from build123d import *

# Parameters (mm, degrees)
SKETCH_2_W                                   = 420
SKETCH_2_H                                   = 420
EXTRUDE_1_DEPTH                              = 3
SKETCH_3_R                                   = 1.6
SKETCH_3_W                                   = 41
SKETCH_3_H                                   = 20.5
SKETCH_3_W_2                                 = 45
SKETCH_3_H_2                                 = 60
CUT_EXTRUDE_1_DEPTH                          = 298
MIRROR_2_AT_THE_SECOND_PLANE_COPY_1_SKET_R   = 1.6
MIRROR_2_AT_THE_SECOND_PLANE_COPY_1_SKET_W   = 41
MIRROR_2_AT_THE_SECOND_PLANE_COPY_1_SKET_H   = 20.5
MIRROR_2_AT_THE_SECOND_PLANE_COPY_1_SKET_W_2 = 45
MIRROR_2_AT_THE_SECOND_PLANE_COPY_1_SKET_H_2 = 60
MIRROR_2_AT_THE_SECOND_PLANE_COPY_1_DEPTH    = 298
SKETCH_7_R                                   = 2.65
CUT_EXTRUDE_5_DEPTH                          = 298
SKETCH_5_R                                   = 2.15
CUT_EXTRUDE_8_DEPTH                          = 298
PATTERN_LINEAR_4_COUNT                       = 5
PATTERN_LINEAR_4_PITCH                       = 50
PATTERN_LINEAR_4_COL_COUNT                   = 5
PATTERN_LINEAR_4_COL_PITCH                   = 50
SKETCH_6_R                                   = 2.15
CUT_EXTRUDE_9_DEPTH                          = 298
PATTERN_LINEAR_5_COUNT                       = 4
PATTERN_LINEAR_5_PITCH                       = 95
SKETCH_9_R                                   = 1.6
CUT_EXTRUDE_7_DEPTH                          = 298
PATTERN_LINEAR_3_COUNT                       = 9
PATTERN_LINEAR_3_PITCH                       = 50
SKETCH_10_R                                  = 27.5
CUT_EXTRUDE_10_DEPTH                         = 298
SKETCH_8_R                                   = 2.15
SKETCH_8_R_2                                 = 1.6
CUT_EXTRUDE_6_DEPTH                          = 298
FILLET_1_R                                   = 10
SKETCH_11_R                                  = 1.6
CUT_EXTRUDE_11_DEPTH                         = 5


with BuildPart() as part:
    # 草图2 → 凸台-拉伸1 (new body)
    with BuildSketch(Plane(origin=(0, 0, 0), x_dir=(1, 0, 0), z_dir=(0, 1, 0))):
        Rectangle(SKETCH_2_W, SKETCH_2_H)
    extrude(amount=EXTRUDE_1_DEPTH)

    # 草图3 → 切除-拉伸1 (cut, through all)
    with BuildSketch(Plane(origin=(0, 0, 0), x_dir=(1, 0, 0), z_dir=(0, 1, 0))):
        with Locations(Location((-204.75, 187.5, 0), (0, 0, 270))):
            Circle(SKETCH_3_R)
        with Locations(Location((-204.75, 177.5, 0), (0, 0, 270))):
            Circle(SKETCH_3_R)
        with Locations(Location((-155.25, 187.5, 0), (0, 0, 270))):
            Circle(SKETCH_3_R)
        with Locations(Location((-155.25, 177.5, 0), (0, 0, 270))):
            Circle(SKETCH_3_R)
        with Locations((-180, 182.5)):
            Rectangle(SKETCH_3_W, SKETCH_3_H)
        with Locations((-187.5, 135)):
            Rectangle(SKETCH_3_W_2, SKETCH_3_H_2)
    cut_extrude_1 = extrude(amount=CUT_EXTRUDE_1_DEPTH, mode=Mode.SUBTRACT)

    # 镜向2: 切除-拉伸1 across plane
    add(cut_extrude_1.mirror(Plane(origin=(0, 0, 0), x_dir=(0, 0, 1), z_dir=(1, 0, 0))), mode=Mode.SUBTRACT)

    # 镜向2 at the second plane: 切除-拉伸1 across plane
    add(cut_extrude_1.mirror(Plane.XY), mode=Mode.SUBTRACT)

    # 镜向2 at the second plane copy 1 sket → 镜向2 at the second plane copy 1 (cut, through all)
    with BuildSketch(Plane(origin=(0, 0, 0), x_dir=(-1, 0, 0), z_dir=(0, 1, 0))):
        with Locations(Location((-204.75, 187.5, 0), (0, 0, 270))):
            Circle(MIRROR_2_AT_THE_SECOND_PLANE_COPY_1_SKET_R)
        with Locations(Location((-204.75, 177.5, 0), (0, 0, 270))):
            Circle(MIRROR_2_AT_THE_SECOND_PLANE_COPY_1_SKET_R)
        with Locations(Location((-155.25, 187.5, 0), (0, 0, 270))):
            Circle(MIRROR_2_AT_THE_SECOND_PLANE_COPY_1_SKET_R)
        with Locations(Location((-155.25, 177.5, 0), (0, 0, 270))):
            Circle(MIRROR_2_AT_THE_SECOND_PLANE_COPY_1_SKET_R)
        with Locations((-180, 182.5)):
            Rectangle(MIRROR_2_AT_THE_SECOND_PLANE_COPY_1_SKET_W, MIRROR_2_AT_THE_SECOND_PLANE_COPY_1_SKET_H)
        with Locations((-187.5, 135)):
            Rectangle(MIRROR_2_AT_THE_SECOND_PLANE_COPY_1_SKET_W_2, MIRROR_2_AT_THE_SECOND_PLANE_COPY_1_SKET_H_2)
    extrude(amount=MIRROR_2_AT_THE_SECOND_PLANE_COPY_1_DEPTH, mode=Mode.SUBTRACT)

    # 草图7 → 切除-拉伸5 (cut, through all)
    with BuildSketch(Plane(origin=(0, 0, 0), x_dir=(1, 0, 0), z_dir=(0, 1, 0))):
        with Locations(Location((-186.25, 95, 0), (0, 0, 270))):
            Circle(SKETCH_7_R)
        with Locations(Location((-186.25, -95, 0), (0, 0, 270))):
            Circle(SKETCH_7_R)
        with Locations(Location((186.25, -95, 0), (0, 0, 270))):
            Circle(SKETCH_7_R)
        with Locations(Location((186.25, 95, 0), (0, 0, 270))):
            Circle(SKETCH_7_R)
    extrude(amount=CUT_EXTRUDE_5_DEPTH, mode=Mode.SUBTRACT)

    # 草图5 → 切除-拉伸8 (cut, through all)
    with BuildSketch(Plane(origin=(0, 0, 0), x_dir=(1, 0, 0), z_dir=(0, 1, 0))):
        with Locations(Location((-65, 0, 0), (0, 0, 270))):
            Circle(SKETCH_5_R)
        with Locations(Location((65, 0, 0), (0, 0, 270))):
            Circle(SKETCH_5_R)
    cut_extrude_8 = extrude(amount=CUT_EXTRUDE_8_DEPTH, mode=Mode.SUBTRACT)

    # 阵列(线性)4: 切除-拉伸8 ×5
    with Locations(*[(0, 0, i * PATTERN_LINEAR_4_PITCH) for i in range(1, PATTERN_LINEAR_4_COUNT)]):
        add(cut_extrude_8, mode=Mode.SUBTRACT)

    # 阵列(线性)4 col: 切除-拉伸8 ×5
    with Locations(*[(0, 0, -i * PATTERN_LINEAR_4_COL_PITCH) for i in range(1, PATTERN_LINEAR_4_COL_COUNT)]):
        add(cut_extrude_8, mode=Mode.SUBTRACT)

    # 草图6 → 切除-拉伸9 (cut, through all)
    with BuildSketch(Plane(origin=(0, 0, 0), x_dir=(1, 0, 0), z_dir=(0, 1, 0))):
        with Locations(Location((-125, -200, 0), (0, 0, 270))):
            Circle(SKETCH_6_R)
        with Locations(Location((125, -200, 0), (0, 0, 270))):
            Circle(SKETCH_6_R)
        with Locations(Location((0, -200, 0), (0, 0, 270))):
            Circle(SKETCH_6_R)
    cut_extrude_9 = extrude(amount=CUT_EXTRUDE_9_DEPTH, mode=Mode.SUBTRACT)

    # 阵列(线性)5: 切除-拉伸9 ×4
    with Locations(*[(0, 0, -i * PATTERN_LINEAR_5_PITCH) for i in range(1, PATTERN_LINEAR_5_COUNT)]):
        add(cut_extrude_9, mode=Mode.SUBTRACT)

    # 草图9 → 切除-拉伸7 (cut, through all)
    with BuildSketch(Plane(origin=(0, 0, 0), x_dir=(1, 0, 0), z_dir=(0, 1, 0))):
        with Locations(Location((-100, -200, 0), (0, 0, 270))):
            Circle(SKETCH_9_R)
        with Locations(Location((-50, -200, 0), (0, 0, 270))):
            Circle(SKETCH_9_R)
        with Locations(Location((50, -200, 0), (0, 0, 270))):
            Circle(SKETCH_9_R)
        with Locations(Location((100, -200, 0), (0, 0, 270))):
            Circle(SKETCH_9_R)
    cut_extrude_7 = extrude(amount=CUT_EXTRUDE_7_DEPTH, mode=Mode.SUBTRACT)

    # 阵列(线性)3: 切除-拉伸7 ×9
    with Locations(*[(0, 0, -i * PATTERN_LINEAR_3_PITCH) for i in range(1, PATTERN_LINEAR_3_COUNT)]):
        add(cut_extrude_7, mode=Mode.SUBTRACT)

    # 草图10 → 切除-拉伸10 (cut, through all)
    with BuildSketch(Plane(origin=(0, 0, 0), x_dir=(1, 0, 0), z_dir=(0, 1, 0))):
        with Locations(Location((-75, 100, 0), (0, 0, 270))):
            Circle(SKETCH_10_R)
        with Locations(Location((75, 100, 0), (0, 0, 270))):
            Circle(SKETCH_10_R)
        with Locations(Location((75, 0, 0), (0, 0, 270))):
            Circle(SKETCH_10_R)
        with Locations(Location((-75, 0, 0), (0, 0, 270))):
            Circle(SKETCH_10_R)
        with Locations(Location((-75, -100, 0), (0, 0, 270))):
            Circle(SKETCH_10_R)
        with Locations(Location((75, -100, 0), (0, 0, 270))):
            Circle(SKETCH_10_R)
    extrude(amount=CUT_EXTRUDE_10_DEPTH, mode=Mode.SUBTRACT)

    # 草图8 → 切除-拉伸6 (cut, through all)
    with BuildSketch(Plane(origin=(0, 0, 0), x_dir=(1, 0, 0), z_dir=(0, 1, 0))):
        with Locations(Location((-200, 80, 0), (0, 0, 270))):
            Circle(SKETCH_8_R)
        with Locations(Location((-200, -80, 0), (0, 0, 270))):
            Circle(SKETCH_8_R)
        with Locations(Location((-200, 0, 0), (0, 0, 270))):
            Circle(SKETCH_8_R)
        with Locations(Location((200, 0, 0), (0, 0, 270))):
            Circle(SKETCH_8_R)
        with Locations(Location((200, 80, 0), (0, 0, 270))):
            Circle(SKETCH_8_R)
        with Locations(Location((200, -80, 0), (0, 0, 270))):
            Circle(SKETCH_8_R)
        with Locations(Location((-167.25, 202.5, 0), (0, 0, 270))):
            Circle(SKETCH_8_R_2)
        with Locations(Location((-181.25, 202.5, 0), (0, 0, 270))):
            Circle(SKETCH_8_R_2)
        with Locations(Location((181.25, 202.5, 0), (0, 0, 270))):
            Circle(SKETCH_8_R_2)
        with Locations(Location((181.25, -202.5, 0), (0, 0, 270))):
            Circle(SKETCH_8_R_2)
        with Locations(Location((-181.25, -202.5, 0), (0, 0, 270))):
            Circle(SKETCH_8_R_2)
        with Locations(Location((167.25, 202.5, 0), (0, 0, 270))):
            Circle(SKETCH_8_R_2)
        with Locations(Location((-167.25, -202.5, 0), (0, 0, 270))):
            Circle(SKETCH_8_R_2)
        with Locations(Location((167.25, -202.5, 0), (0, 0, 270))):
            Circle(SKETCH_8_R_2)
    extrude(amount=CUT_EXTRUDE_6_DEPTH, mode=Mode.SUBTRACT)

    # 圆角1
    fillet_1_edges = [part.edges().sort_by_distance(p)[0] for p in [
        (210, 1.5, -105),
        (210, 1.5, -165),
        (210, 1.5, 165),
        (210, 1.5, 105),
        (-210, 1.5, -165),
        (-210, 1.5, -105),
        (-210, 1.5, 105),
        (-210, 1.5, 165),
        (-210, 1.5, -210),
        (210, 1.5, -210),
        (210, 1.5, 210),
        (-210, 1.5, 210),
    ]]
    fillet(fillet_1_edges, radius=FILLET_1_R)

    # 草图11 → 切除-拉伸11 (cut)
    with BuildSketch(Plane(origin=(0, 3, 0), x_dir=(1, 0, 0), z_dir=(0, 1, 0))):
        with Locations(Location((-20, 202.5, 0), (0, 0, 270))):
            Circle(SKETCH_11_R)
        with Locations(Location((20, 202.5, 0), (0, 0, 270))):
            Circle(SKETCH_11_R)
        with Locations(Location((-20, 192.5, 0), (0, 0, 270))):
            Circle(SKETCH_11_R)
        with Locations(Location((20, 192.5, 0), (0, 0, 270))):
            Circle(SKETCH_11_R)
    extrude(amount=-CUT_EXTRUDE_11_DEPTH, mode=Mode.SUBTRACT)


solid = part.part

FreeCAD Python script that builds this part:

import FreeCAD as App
import Part
import Sketcher

V = App.Vector


def edges_at(feature, points):
    """Names of the edges that pass closest to the given points."""
    edges = feature.Shape.Edges
    near = lambda p: min(range(len(edges)), key=lambda i: edges[i].distToShape(Part.Vertex(*p))[0])
    return sorted({f"Edge{near(p) + 1}" for p in points})


def add_polygon(sketch, points):
    """Adds a closed chain of lines whose ends are joined by coincident constraints."""
    first, n = sketch.GeometryCount, len(points)
    for a, b in zip(points, points[1:] + points[:1]):
        sketch.addGeometry(Part.LineSegment(App.Vector(*a, 0), App.Vector(*b, 0)), False)
    for i in range(n):
        sketch.addConstraint(Sketcher.Constraint("Coincident", first + i, 2, first + (i + 1) % n, 1))

doc = App.newDocument("Part")
body = doc.addObject("PartDesign::Body", "Body")

# Sketch on XZ plane
sketch1 = doc.addObject("Sketcher::SketchObject", "Sketch")
body.addObject(sketch1)
sketch1.AttachmentSupport = (doc.XZ_Plane, [""])
sketch1.MapMode = "FlatFace"
add_polygon(sketch1, [(-210, -210), (-210, 210), (210, 210), (210, -210)])  # lines 0-3
sketch1.addConstraint(Sketcher.Constraint("Vertical", 0))
sketch1.addConstraint(Sketcher.Constraint("Horizontal", 1))
sketch1.addConstraint(Sketcher.Constraint("Vertical", 2))
sketch1.addConstraint(Sketcher.Constraint("Horizontal", 3))
sketch1.addConstraint(Sketcher.Constraint("Symmetric", 0, 2, 2, 2, -1, 1))
sketch1.addConstraint(Sketcher.Constraint("Equal", 3, 0))
sketch1.addConstraint(Sketcher.Constraint("DistanceX", 1, 1, 1, 2, 420.0))
pad1 = doc.addObject("PartDesign::Pad", "Pad")
body.addObject(pad1)
pad1.Profile = sketch1
pad1.Length = 3
pad1.Reversed = True

# Sketch on XZ plane
sketch2 = doc.addObject("Sketcher::SketchObject", "Sketch001")
body.addObject(sketch2)
sketch2.AttachmentSupport = (doc.XZ_Plane, [""])
sketch2.MapMode = "FlatFace"
sketch2.addGeometry(Part.Circle(V(-204.8, -187.5, 0), V(0, 0, 1), 1.6), False)  # 0
sketch2.addGeometry(Part.Circle(V(-204.8, -177.5, 0), V(0, 0, 1), 1.6), False)  # 1
sketch2.addGeometry(Part.Circle(V(-155.2, -187.5, 0), V(0, 0, 1), 1.6), False)  # 2
sketch2.addGeometry(Part.Circle(V(-155.2, -177.5, 0), V(0, 0, 1), 1.6), False)  # 3
add_polygon(sketch2, [(-200.5, -192.8), (-200.5, -172.2), (-159.5, -172.2), (-159.5, -192.8)])  # lines 4-7
add_polygon(sketch2, [(-210, -165), (-210, -105), (-165, -105), (-165, -165)])  # lines 8-11
sketch2.addConstraint(Sketcher.Constraint("Vertical", 4))
sketch2.addConstraint(Sketcher.Constraint("Horizontal", 5))
sketch2.addConstraint(Sketcher.Constraint("Vertical", 6))
sketch2.addConstraint(Sketcher.Constraint("Horizontal", 7))
sketch2.addConstraint(Sketcher.Constraint("Vertical", 8))
sketch2.addConstraint(Sketcher.Constraint("Horizontal", 9))
sketch2.addConstraint(Sketcher.Constraint("Vertical", 10))
sketch2.addConstraint(Sketcher.Constraint("Horizontal", 11))
sketch2.addConstraint(Sketcher.Constraint("Equal", 0, 1))
sketch2.addConstraint(Sketcher.Constraint("Equal", 1, 2))
sketch2.addConstraint(Sketcher.Constraint("Equal", 2, 3))
sketch2.addConstraint(Sketcher.Constraint("Horizontal", 0, 3, 2, 3))
sketch2.addConstraint(Sketcher.Constraint("Horizontal", 1, 3, 3, 3))
sketch2.addConstraint(Sketcher.Constraint("Vertical", 0, 3, 1, 3))
sketch2.addConstraint(Sketcher.Constraint("Vertical", 2, 3, 3, 3))
sketch2.addConstraint(Sketcher.Constraint("Diameter", 0, 3.2))
sketch2.addConstraint(Sketcher.Constraint("DistanceX", 5, 1, 5, 2, 41.0))
sketch2.addConstraint(Sketcher.Constraint("DistanceX", 9, 1, 9, 2, 45.0))
sketch2.addConstraint(Sketcher.Constraint("DistanceY", 8, 1, 8, 2, 60.0))
sketch2.addConstraint(Sketcher.Constraint("DistanceY", 4, 1, 4, 2, 20.5))
sketch2.addConstraint(Sketcher.Constraint("DistanceX", 8, 2, -1, 1, 210.0))
sketch2.addConstraint(Sketcher.Constraint("DistanceY", 8, 2, -1, 1, 105.0))
sketch2.addConstraint(Sketcher.Constraint("DistanceY", 0, 3, 1, 3, 10.0))
sketch2.addConstraint(Sketcher.Constraint("DistanceY", 0, 3, -1, 1, 187.5))
sketch2.addConstraint(Sketcher.Constraint("DistanceX", 4, 2, -1, 1, 200.5))
sketch2.addConstraint(Sketcher.Constraint("DistanceX", 0, 3, 2, 3, 49.5))
sketch2.addConstraint(Sketcher.Constraint("DistanceX", 0, 3, -1, 1, 204.75))
sketch2.addConstraint(Sketcher.Constraint("DistanceY", 4, 2, -1, 1, 172.25))
pocket1 = doc.addObject("PartDesign::Pocket", "Pocket")
body.addObject(pocket1)
pocket1.Profile = sketch2
pocket1.Type = "ThroughAll"
doc.recompute()

mirrored = doc.addObject("PartDesign::Mirrored", "Mirrored")
body.addObject(mirrored)
mirrored.Originals = [pocket1]
mirrored.MirrorPlane = (doc.YZ_Plane, [""])
body.Tip = mirrored
doc.recompute()

mirrored2 = doc.addObject("PartDesign::Mirrored", "Mirrored001")
body.addObject(mirrored2)
mirrored2.Originals = [pocket1]
mirrored2.MirrorPlane = (doc.XY_Plane, [""])
body.Tip = mirrored2

# Sketch on XZ plane
sketch3 = doc.addObject("Sketcher::SketchObject", "Sketch002")
body.addObject(sketch3)
sketch3.AttachmentSupport = (doc.XZ_Plane, [""])
sketch3.MapMode = "FlatFace"
sketch3.addGeometry(Part.Circle(V(204.8, 187.5, 0), V(0, 0, 1), 1.6), False)  # 0
sketch3.addGeometry(Part.Circle(V(204.8, 177.5, 0), V(0, 0, 1), 1.6), False)  # 1
sketch3.addGeometry(Part.Circle(V(155.2, 187.5, 0), V(0, 0, 1), 1.6), False)  # 2
sketch3.addGeometry(Part.Circle(V(155.2, 177.5, 0), V(0, 0, 1), 1.6), False)  # 3
add_polygon(sketch3, [(200.5, 192.8), (200.5, 172.2), (159.5, 172.2), (159.5, 192.8)])  # lines 4-7
add_polygon(sketch3, [(210, 165), (210, 105), (165, 105), (165, 165)])  # lines 8-11
sketch3.addConstraint(Sketcher.Constraint("Vertical", 4))
sketch3.addConstraint(Sketcher.Constraint("Horizontal", 5))
sketch3.addConstraint(Sketcher.Constraint("Vertical", 6))
sketch3.addConstraint(Sketcher.Constraint("Horizontal", 7))
sketch3.addConstraint(Sketcher.Constraint("Vertical", 8))
sketch3.addConstraint(Sketcher.Constraint("Horizontal", 9))
sketch3.addConstraint(Sketcher.Constraint("Vertical", 10))
sketch3.addConstraint(Sketcher.Constraint("Horizontal", 11))
sketch3.addConstraint(Sketcher.Constraint("Equal", 0, 1))
sketch3.addConstraint(Sketcher.Constraint("Equal", 1, 2))
sketch3.addConstraint(Sketcher.Constraint("Equal", 2, 3))
sketch3.addConstraint(Sketcher.Constraint("Horizontal", 0, 3, 2, 3))
sketch3.addConstraint(Sketcher.Constraint("Horizontal", 1, 3, 3, 3))
sketch3.addConstraint(Sketcher.Constraint("Vertical", 0, 3, 1, 3))
sketch3.addConstraint(Sketcher.Constraint("Vertical", 2, 3, 3, 3))
sketch3.addConstraint(Sketcher.Constraint("Diameter", 0, 3.2))
sketch3.addConstraint(Sketcher.Constraint("DistanceX", 5, 2, 5, 1, 41.0))
sketch3.addConstraint(Sketcher.Constraint("DistanceX", 9, 2, 9, 1, 45.0))
sketch3.addConstraint(Sketcher.Constraint("DistanceY", 8, 2, 8, 1, 60.0))
sketch3.addConstraint(Sketcher.Constraint("DistanceY", 4, 2, 4, 1, 20.5))
sketch3.addConstraint(Sketcher.Constraint("DistanceX", -1, 1, 8, 2, 210.0))
sketch3.addConstraint(Sketcher.Constraint("DistanceY", -1, 1, 8, 2, 105.0))
sketch3.addConstraint(Sketcher.Constraint("DistanceY", 1, 3, 0, 3, 10.0))
sketch3.addConstraint(Sketcher.Constraint("DistanceY", -1, 1, 0, 3, 187.5))
sketch3.addConstraint(Sketcher.Constraint("DistanceX", -1, 1, 4, 2, 200.5))
sketch3.addConstraint(Sketcher.Constraint("DistanceX", 2, 3, 0, 3, 49.5))
sketch3.addConstraint(Sketcher.Constraint("DistanceX", -1, 1, 0, 3, 204.75))
sketch3.addConstraint(Sketcher.Constraint("DistanceY", -1, 1, 4, 2, 172.25))
pocket2 = doc.addObject("PartDesign::Pocket", "Pocket001")
body.addObject(pocket2)
pocket2.Profile = sketch3
pocket2.Type = "ThroughAll"

# Sketch on XZ plane
sketch4 = doc.addObject("Sketcher::SketchObject", "Sketch003")
body.addObject(sketch4)
sketch4.AttachmentSupport = (doc.XZ_Plane, [""])
sketch4.MapMode = "FlatFace"
sketch4.addGeometry(Part.Circle(V(-186.2, -95, 0), V(0, 0, 1), 2.6), False)
sketch4.addGeometry(Part.Circle(V(-186.2, 95, 0), V(0, 0, 1), 2.6), False)
sketch4.addGeometry(Part.Circle(V(186.2, 95, 0), V(0, 0, 1), 2.6), False)
sketch4.addGeometry(Part.Circle(V(186.2, -95, 0), V(0, 0, 1), 2.6), False)
sketch4.addConstraint(Sketcher.Constraint("Equal", 0, 1))
sketch4.addConstraint(Sketcher.Constraint("Equal", 1, 2))
sketch4.addConstraint(Sketcher.Constraint("Equal", 2, 3))
sketch4.addConstraint(Sketcher.Constraint("Symmetric", 0, 3, 2, 3, -1, 1))
sketch4.addConstraint(Sketcher.Constraint("Symmetric", 1, 3, 3, 3, -1, 1))
sketch4.addConstraint(Sketcher.Constraint("Symmetric", 1, 3, 2, 3, -2))
sketch4.addConstraint(Sketcher.Constraint("Diameter", 0, 5.3))
sketch4.addConstraint(Sketcher.Constraint("DistanceY", 0, 3, -1, 1, 95.0))
sketch4.addConstraint(Sketcher.Constraint("DistanceX", 1, 3, 2, 3, 372.5))
pocket3 = doc.addObject("PartDesign::Pocket", "Pocket002")
body.addObject(pocket3)
pocket3.Profile = sketch4
pocket3.Type = "ThroughAll"

# Sketch on XZ plane
sketch5 = doc.addObject("Sketcher::SketchObject", "Sketch004")
body.addObject(sketch5)
sketch5.AttachmentSupport = (doc.XZ_Plane, [""])
sketch5.MapMode = "FlatFace"
sketch5.addGeometry(Part.Circle(V(-65, 0, 0), V(0, 0, 1), 2.1), False)
sketch5.addGeometry(Part.Circle(V(65, 0, 0), V(0, 0, 1), 2.1), False)
sketch5.addConstraint(Sketcher.Constraint("Equal", 0, 1))
sketch5.addConstraint(Sketcher.Constraint("Symmetric", 0, 3, 1, 3, -1, 1))
sketch5.addConstraint(Sketcher.Constraint("PointOnObject", 0, 3, -1))
sketch5.addConstraint(Sketcher.Constraint("Diameter", 0, 4.3))
sketch5.addConstraint(Sketcher.Constraint("DistanceX", 0, 3, -1, 1, 65.0))
pocket4 = doc.addObject("PartDesign::Pocket", "Pocket003")
body.addObject(pocket4)
pocket4.Profile = sketch5
pocket4.Type = "ThroughAll"
doc.recompute()

linearpattern = doc.addObject("PartDesign::LinearPattern", "LinearPattern")
body.addObject(linearpattern)
linearpattern.Originals = [pocket4]
linearpattern.Direction = (doc.Z_Axis, [""])
linearpattern.Mode = "offset"
linearpattern.Offset = 50
linearpattern.Occurrences = 5
body.Tip = linearpattern
doc.recompute()

linearpattern2 = doc.addObject("PartDesign::LinearPattern", "LinearPattern001")
body.addObject(linearpattern2)
linearpattern2.Originals = [pocket4]
linearpattern2.Direction = (doc.Z_Axis, [""])
linearpattern2.Mode = "offset"
linearpattern2.Offset = 50
linearpattern2.Occurrences = 5
linearpattern2.Reversed = True
body.Tip = linearpattern2

# Sketch on XZ plane
sketch6 = doc.addObject("Sketcher::SketchObject", "Sketch005")
body.addObject(sketch6)
sketch6.AttachmentSupport = (doc.XZ_Plane, [""])
sketch6.MapMode = "FlatFace"
sketch6.addGeometry(Part.Circle(V(-125, 200, 0), V(0, 0, 1), 2.1), False)
sketch6.addGeometry(Part.Circle(V(125, 200, 0), V(0, 0, 1), 2.1), False)
sketch6.addGeometry(Part.Circle(V(0, 200, 0), V(0, 0, 1), 2.1), False)
sketch6.addConstraint(Sketcher.Constraint("Equal", 0, 1))
sketch6.addConstraint(Sketcher.Constraint("Equal", 1, 2))
sketch6.addConstraint(Sketcher.Constraint("Symmetric", 0, 3, 1, 3, -2))
sketch6.addConstraint(Sketcher.Constraint("PointOnObject", 2, 3, -2))
sketch6.addConstraint(Sketcher.Constraint("Horizontal", 1, 3, 2, 3))
sketch6.addConstraint(Sketcher.Constraint("Diameter", 0, 4.3))
sketch6.addConstraint(Sketcher.Constraint("DistanceX", 0, 3, -1, 1, 125.0))
sketch6.addConstraint(Sketcher.Constraint("DistanceY", -1, 1, 0, 3, 200.0))
pocket5 = doc.addObject("PartDesign::Pocket", "Pocket004")
body.addObject(pocket5)
pocket5.Profile = sketch6
pocket5.Type = "ThroughAll"
doc.recompute()

linearpattern3 = doc.addObject("PartDesign::LinearPattern", "LinearPattern002")
body.addObject(linearpattern3)
linearpattern3.Originals = [pocket5]
linearpattern3.Direction = (doc.Z_Axis, [""])
linearpattern3.Mode = "offset"
linearpattern3.Offset = 95
linearpattern3.Occurrences = 4
linearpattern3.Reversed = True
body.Tip = linearpattern3

# Sketch on XZ plane
sketch7 = doc.addObject("Sketcher::SketchObject", "Sketch006")
body.addObject(sketch7)
sketch7.AttachmentSupport = (doc.XZ_Plane, [""])
sketch7.MapMode = "FlatFace"
sketch7.addGeometry(Part.Circle(V(-100, 200, 0), V(0, 0, 1), 1.6), False)
sketch7.addGeometry(Part.Circle(V(-50, 200, 0), V(0, 0, 1), 1.6), False)
sketch7.addGeometry(Part.Circle(V(50, 200, 0), V(0, 0, 1), 1.6), False)
sketch7.addGeometry(Part.Circle(V(100, 200, 0), V(0, 0, 1), 1.6), False)
sketch7.addConstraint(Sketcher.Constraint("Equal", 0, 1))
sketch7.addConstraint(Sketcher.Constraint("Equal", 1, 2))
sketch7.addConstraint(Sketcher.Constraint("Equal", 2, 3))
sketch7.addConstraint(Sketcher.Constraint("Symmetric", 1, 3, 2, 3, -2))
sketch7.addConstraint(Sketcher.Constraint("Symmetric", 0, 3, 3, 3, -2))
sketch7.addConstraint(Sketcher.Constraint("Horizontal", 0, 3, 1, 3))
sketch7.addConstraint(Sketcher.Constraint("Diameter", 0, 3.2))
sketch7.addConstraint(Sketcher.Constraint("DistanceX", 0, 3, -1, 1, 100.0))
sketch7.addConstraint(Sketcher.Constraint("DistanceY", -1, 1, 0, 3, 200.0))
sketch7.addConstraint(Sketcher.Constraint("DistanceX", 1, 3, -1, 1, 50.0))
pocket6 = doc.addObject("PartDesign::Pocket", "Pocket005")
body.addObject(pocket6)
pocket6.Profile = sketch7
pocket6.Type = "ThroughAll"
doc.recompute()

linearpattern4 = doc.addObject("PartDesign::LinearPattern", "LinearPattern003")
body.addObject(linearpattern4)
linearpattern4.Originals = [pocket6]
linearpattern4.Direction = (doc.Z_Axis, [""])
linearpattern4.Mode = "offset"
linearpattern4.Offset = 50
linearpattern4.Occurrences = 9
linearpattern4.Reversed = True
body.Tip = linearpattern4

# Sketch on XZ plane
sketch8 = doc.addObject("Sketcher::SketchObject", "Sketch007")
body.addObject(sketch8)
sketch8.AttachmentSupport = (doc.XZ_Plane, [""])
sketch8.MapMode = "FlatFace"
sketch8.addGeometry(Part.Circle(V(-75, -100, 0), V(0, 0, 1), 28), False)
sketch8.addGeometry(Part.Circle(V(75, -100, 0), V(0, 0, 1), 28), False)
sketch8.addGeometry(Part.Circle(V(75, 0, 0), V(0, 0, 1), 28), False)
sketch8.addGeometry(Part.Circle(V(-75, 0, 0), V(0, 0, 1), 28), False)
sketch8.addGeometry(Part.Circle(V(-75, 100, 0), V(0, 0, 1), 28), False)
sketch8.addGeometry(Part.Circle(V(75, 100, 0), V(0, 0, 1), 28), False)
sketch8.addConstraint(Sketcher.Constraint("Equal", 0, 1))
sketch8.addConstraint(Sketcher.Constraint("Equal", 1, 2))
sketch8.addConstraint(Sketcher.Constraint("Equal", 2, 3))
sketch8.addConstraint(Sketcher.Constraint("Equal", 3, 4))
sketch8.addConstraint(Sketcher.Constraint("Equal", 4, 5))
sketch8.addConstraint(Sketcher.Constraint("Symmetric", 2, 3, 3, 3, -1, 1))
sketch8.addConstraint(Sketcher.Constraint("Symmetric", 1, 3, 4, 3, -1, 1))
sketch8.addConstraint(Sketcher.Constraint("Symmetric", 0, 3, 5, 3, -1, 1))
sketch8.addConstraint(Sketcher.Constraint("Symmetric", 0, 3, 1, 3, -2))
sketch8.addConstraint(Sketcher.Constraint("PointOnObject", 2, 3, -1))
sketch8.addConstraint(Sketcher.Constraint("Vertical", 1, 3, 2, 3))
sketch8.addConstraint(Sketcher.Constraint("Diameter", 0, 55.0))
sketch8.addConstraint(Sketcher.Constraint("DistanceX", 0, 3, -1, 1, 75.0))
sketch8.addConstraint(Sketcher.Constraint("DistanceY", 0, 3, -1, 1, 100.0))
pocket7 = doc.addObject("PartDesign::Pocket", "Pocket006")
body.addObject(pocket7)
pocket7.Profile = sketch8
pocket7.Type = "ThroughAll"

# Sketch on XZ plane
sketch9 = doc.addObject("Sketcher::SketchObject", "Sketch008")
body.addObject(sketch9)
sketch9.AttachmentSupport = (doc.XZ_Plane, [""])
sketch9.MapMode = "FlatFace"
sketch9.addGeometry(Part.Circle(V(-200, -80, 0), V(0, 0, 1), 2.1), False)
sketch9.addGeometry(Part.Circle(V(-200, 80, 0), V(0, 0, 1), 2.1), False)
sketch9.addGeometry(Part.Circle(V(-200, 0, 0), V(0, 0, 1), 2.1), False)
sketch9.addGeometry(Part.Circle(V(200, 0, 0), V(0, 0, 1), 2.1), False)
sketch9.addGeometry(Part.Circle(V(200, -80, 0), V(0, 0, 1), 2.1), False)
sketch9.addGeometry(Part.Circle(V(200, 80, 0), V(0, 0, 1), 2.1), False)
sketch9.addGeometry(Part.Circle(V(-167.2, -202.5, 0), V(0, 0, 1), 1.6), False)
sketch9.addGeometry(Part.Circle(V(-181.2, -202.5, 0), V(0, 0, 1), 1.6), False)
sketch9.addGeometry(Part.Circle(V(181.2, -202.5, 0), V(0, 0, 1), 1.6), False)
sketch9.addGeometry(Part.Circle(V(181.2, 202.5, 0), V(0, 0, 1), 1.6), False)
sketch9.addGeometry(Part.Circle(V(-181.2, 202.5, 0), V(0, 0, 1), 1.6), False)
sketch9.addGeometry(Part.Circle(V(167.2, -202.5, 0), V(0, 0, 1), 1.6), False)
sketch9.addGeometry(Part.Circle(V(-167.2, 202.5, 0), V(0, 0, 1), 1.6), False)
sketch9.addGeometry(Part.Circle(V(167.2, 202.5, 0), V(0, 0, 1), 1.6), False)
sketch9.addConstraint(Sketcher.Constraint("Equal", 0, 1))
sketch9.addConstraint(Sketcher.Constraint("Equal", 1, 2))
sketch9.addConstraint(Sketcher.Constraint("Equal", 2, 3))
sketch9.addConstraint(Sketcher.Constraint("Equal", 3, 4))
sketch9.addConstraint(Sketcher.Constraint("Equal", 4, 5))
sketch9.addConstraint(Sketcher.Constraint("Equal", 6, 7))
sketch9.addConstraint(Sketcher.Constraint("Equal", 7, 8))
sketch9.addConstraint(Sketcher.Constraint("Equal", 8, 9))
sketch9.addConstraint(Sketcher.Constraint("Equal", 9, 10))
sketch9.addConstraint(Sketcher.Constraint("Equal", 10, 11))
sketch9.addConstraint(Sketcher.Constraint("Equal", 11, 12))
sketch9.addConstraint(Sketcher.Constraint("Equal", 12, 13))
sketch9.addConstraint(Sketcher.Constraint("Symmetric", 2, 3, 3, 3, -1, 1))
sketch9.addConstraint(Sketcher.Constraint("Symmetric", 1, 3, 4, 3, -1, 1))
sketch9.addConstraint(Sketcher.Constraint("Symmetric", 0, 3, 5, 3, -1, 1))
sketch9.addConstraint(Sketcher.Constraint("Symmetric", 7, 3, 9, 3, -1, 1))
sketch9.addConstraint(Sketcher.Constraint("Symmetric", 8, 3, 10, 3, -1, 1))
sketch9.addConstraint(Sketcher.Constraint("Symmetric", 11, 3, 12, 3, -1, 1))
sketch9.addConstraint(Sketcher.Constraint("Symmetric", 6, 3, 13, 3, -1, 1))
sketch9.addConstraint(Sketcher.Constraint("Symmetric", 0, 3, 4, 3, -2))
sketch9.addConstraint(Sketcher.Constraint("Symmetric", 7, 3, 8, 3, -2))
sketch9.addConstraint(Sketcher.Constraint("Symmetric", 6, 3, 11, 3, -2))
sketch9.addConstraint(Sketcher.Constraint("PointOnObject", 2, 3, -1))
sketch9.addConstraint(Sketcher.Constraint("Horizontal", 6, 3, 7, 3))
sketch9.addConstraint(Sketcher.Constraint("Vertical", 1, 3, 2, 3))
sketch9.addConstraint(Sketcher.Constraint("Diameter", 0, 4.3))
sketch9.addConstraint(Sketcher.Constraint("Diameter", 6, 3.2))
sketch9.addConstraint(Sketcher.Constraint("DistanceX", 0, 3, -1, 1, 200.0))
sketch9.addConstraint(Sketcher.Constraint("DistanceY", 0, 3, -1, 1, 80.0))
sketch9.addConstraint(Sketcher.Constraint("DistanceX", 7, 3, 6, 3, 14.0))
sketch9.addConstraint(Sketcher.Constraint("DistanceY", 8, 3, 9, 3, 405.0))
sketch9.addConstraint(Sketcher.Constraint("DistanceX", 6, 3, 8, 3, 348.5))
pocket8 = doc.addObject("PartDesign::Pocket", "Pocket007")
body.addObject(pocket8)
pocket8.Profile = sketch9
pocket8.Type = "ThroughAll"
doc.recompute()

fillet = doc.addObject("PartDesign::Fillet", "Fillet")
body.addObject(fillet)
fillet.Base = (pocket8, edges_at(pocket8, [
    (210, 1.5, -105),
    (210, 1.5, -165),
    (210, 1.5, 165),
    (210, 1.5, 105),
    (-210, 1.5, -165),
    (-210, 1.5, -105),
    (-210, 1.5, 105),
    (-210, 1.5, 165),
    (-210, 1.5, -210),
    (210, 1.5, -210),
    (210, 1.5, 210),
    (-210, 1.5, 210),
]))
fillet.Radius = 10

# Sketch on XZ plane
sketch10 = doc.addObject("Sketcher::SketchObject", "Sketch009")
body.addObject(sketch10)
sketch10.AttachmentSupport = (doc.XZ_Plane, [""])
sketch10.MapMode = "FlatFace"
sketch10.AttachmentOffset = App.Placement(V(0, 0, -3), App.Rotation())
sketch10.addGeometry(Part.Circle(V(-20, -202.5, 0), V(0, 0, 1), 1.6), False)
sketch10.addGeometry(Part.Circle(V(20, -202.5, 0), V(0, 0, 1), 1.6), False)
sketch10.addGeometry(Part.Circle(V(-20, -192.5, 0), V(0, 0, 1), 1.6), False)
sketch10.addGeometry(Part.Circle(V(20, -192.5, 0), V(0, 0, 1), 1.6), False)
sketch10.addConstraint(Sketcher.Constraint("Equal", 0, 1))
sketch10.addConstraint(Sketcher.Constraint("Equal", 1, 2))
sketch10.addConstraint(Sketcher.Constraint("Equal", 2, 3))
sketch10.addConstraint(Sketcher.Constraint("Symmetric", 0, 3, 1, 3, -2))
sketch10.addConstraint(Sketcher.Constraint("Symmetric", 2, 3, 3, 3, -2))
sketch10.addConstraint(Sketcher.Constraint("Vertical", 0, 3, 2, 3))
sketch10.addConstraint(Sketcher.Constraint("Diameter", 0, 3.2))
sketch10.addConstraint(Sketcher.Constraint("DistanceX", 0, 3, -1, 1, 20.0))
sketch10.addConstraint(Sketcher.Constraint("DistanceY", 0, 3, 2, 3, 10.0))
sketch10.addConstraint(Sketcher.Constraint("DistanceY", 0, 3, -1, 1, 202.5))
pocket9 = doc.addObject("PartDesign::Pocket", "Pocket008")
body.addObject(pocket9)
pocket9.Profile = sketch10
pocket9.Length = 5
pocket9.Reversed = True

doc.recompute()
